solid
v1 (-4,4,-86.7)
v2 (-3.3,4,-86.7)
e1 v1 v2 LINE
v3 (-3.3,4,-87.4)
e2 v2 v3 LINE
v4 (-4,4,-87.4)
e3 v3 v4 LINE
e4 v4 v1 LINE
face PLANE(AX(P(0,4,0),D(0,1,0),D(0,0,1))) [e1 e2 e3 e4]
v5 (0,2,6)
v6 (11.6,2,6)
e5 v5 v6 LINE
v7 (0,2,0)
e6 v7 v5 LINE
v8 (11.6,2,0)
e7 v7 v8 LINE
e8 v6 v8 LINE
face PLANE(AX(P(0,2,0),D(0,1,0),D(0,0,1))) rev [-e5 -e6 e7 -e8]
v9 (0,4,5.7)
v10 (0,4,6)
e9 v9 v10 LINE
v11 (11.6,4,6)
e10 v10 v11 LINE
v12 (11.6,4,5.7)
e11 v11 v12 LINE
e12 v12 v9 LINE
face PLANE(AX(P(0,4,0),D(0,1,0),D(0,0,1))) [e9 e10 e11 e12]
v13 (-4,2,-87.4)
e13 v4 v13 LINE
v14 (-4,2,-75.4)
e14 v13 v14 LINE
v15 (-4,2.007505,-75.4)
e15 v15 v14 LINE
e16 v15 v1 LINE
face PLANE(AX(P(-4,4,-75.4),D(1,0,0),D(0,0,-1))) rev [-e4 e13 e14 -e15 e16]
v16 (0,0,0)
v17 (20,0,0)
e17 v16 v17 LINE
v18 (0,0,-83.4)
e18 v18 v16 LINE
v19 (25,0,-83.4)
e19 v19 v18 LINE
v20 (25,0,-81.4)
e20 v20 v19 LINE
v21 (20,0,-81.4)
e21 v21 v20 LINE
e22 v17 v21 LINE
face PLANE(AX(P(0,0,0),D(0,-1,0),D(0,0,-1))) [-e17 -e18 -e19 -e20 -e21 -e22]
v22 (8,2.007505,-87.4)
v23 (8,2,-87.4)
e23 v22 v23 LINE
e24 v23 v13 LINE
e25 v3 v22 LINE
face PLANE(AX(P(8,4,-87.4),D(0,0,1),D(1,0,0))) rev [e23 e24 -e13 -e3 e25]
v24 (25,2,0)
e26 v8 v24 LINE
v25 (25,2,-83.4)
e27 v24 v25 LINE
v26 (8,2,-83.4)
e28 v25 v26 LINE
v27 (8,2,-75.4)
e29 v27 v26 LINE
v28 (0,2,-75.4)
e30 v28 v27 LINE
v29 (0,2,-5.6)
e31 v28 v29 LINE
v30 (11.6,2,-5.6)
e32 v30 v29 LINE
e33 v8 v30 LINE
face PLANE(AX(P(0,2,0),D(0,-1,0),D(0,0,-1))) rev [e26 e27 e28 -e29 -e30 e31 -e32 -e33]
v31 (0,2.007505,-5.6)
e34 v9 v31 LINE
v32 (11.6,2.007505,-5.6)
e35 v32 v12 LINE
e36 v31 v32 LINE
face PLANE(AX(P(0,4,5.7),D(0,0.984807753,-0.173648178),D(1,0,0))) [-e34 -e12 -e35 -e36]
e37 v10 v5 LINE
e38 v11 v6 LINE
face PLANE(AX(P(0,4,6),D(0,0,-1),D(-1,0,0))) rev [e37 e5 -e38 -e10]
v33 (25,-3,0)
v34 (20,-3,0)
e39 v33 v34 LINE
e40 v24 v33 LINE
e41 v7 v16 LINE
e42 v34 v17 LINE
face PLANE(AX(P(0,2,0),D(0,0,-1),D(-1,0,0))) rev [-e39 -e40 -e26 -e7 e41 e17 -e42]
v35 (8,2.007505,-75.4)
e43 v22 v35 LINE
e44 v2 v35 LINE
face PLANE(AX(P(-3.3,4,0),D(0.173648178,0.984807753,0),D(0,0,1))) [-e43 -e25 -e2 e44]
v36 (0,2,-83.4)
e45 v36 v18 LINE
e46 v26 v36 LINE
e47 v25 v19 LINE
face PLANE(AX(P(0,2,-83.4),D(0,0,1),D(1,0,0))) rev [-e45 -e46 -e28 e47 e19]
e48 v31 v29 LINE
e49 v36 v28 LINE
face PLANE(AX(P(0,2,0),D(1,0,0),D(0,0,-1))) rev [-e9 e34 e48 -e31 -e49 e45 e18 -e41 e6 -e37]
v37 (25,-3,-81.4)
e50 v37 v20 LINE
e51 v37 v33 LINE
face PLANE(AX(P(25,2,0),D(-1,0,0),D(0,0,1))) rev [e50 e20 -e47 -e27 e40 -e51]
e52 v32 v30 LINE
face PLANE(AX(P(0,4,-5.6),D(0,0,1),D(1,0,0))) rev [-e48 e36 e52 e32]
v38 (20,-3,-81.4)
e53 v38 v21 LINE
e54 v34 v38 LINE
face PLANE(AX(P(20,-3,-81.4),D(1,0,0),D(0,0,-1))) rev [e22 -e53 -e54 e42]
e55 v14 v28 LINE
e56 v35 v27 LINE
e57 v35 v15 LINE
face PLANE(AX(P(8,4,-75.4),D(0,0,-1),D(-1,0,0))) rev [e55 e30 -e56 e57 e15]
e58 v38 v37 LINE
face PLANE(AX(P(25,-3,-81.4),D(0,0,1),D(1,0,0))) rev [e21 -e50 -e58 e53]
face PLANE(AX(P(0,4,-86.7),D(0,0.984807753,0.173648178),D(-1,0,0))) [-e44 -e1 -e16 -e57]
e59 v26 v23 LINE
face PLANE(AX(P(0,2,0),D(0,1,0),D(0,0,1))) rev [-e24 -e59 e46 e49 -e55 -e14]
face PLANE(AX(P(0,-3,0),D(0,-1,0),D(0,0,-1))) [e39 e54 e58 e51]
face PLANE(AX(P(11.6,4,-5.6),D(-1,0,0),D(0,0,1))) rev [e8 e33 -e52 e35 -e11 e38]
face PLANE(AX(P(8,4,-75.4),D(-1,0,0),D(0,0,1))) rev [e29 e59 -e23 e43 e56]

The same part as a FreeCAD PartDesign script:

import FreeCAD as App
import Part
import Sketcher


def edges_at(feature, points):
    """Names of the edges that pass closest to the given points."""
    edges = feature.Shape.Edges
    near = lambda p: min(range(len(edges)), key=lambda i: edges[i].distToShape(Part.Vertex(*p))[0])
    return sorted({f"Edge{near(p) + 1}" for p in points})

doc = App.newDocument("Part")
body = doc.addObject("PartDesign::Body", "Body")

# Sketch on XZ plane
sketch1 = body.newObject("Sketcher::SketchObject", "Sketch")
sketch1.AttachmentSupport = (doc.getObject("XZ_Plane"), [""])
sketch1.MapMode = "FlatFace"
sketch1.addGeometry([
    Part.LineSegment(App.Vector(0, -83, 0), App.Vector(0, 0, 0)),
    Part.LineSegment(App.Vector(0, 0, 0), App.Vector(25, 0, 0)),
    Part.LineSegment(App.Vector(25, 0, 0), App.Vector(25, -83, 0)),
    Part.LineSegment(App.Vector(25, -83, 0), App.Vector(0, -83, 0)),
], False)
sketch1.addConstraint([
    Sketcher.Constraint("Coincident", 0, 2, 1, 1),
    Sketcher.Constraint("Coincident", 1, 2, 2, 1),
    Sketcher.Constraint("Coincident", 2, 2, 3, 1),
    Sketcher.Constraint("Coincident", 3, 2, 0, 1),
    Sketcher.Constraint("Vertical", 0),
    Sketcher.Constraint("Horizontal", 1),
    Sketcher.Constraint("Vertical", 2),
    Sketcher.Constraint("Horizontal", 3),
    Sketcher.Constraint("Coincident", 0, 2, -1, 1),
    Sketcher.Constraint("DistanceX", 1, 1, 1, 2, 25.0),
    Sketcher.Constraint("DistanceY", 0, 1, 0, 2, 83.4),
])
pad1 = body.newObject("PartDesign::Pad", "Pad")
pad1.Profile = sketch1
pad1.Length = 2
pad1.Reversed = True

# Sketch on XZ plane
sketch2 = body.newObject("Sketcher::SketchObject", "Sketch001")
sketch2.AttachmentSupport = (doc.getObject("XZ_Plane"), [""])
sketch2.MapMode = "FlatFace"
sketch2.AttachmentOffset = App.Placement(App.Vector(0, 0, -2), App.Rotation())
sketch2.addGeometry([
    Part.LineSegment(App.Vector(0, -6, 0), App.Vector(0, 6, 0)),  # 0
    Part.LineSegment(App.Vector(0, 6, 0), App.Vector(12, 6, 0)),  # 1
    Part.LineSegment(App.Vector(12, 6, 0), App.Vector(12, -6, 0)),  # 2
    Part.LineSegment(App.Vector(12, -6, 0), App.Vector(0, -6, 0)),  # 3
    Part.LineSegment(App.Vector(-4, -87, 0), App.Vector(-4, -75, 0)),  # 4
    Part.LineSegment(App.Vector(-4, -75, 0), App.Vector(8, -75, 0)),  # 5
    Part.LineSegment(App.Vector(8, -75, 0), App.Vector(8, -87, 0)),  # 6
    Part.LineSegment(App.Vector(8, -87, 0), App.Vector(-4, -87, 0)),  # 7
], False)
sketch2.addConstraint([
    Sketcher.Constraint("Coincident", 0, 2, 1, 1),
    Sketcher.Constraint("Coincident", 1, 2, 2, 1),
    Sketcher.Constraint("Coincident", 2, 2, 3, 1),
    Sketcher.Constraint("Coincident", 3, 2, 0, 1),
    Sketcher.Constraint("Coincident", 4, 2, 5, 1),
    Sketcher.Constraint("Coincident", 5, 2, 6, 1),
    Sketcher.Constraint("Coincident", 6, 2, 7, 1),
    Sketcher.Constraint("Coincident", 7, 2, 4, 1),
    Sketcher.Constraint("Vertical", 0),
    Sketcher.Constraint("Horizontal", 1),
    Sketcher.Constraint("Vertical", 2),
    Sketcher.Constraint("Horizontal", 3),
    Sketcher.Constraint("Vertical", 4),
    Sketcher.Constraint("Horizontal", 5),
    Sketcher.Constraint("Vertical", 6),
    Sketcher.Constraint("Horizontal", 7),
    Sketcher.Constraint("PointOnObject", 0, 2, -2),
    Sketcher.Constraint("Equal", 3, 0),
    Sketcher.Constraint("Equal", 7, 4),
    Sketcher.Constraint("DistanceX", 5, 1, 5, 2, 12.0),
    Sketcher.Constraint("DistanceX", 1, 1, 1, 2, 11.6),
    Sketcher.Constraint("DistanceY", -1, 1, 0, 2, 6.0),
    Sketcher.Constraint("DistanceX", 4, 2, -1, 1, 4.0),
    Sketcher.Constraint("DistanceY", 4, 2, -1, 1, 75.4),
])
pad2 = body.newObject("PartDesign::Pad", "Pad001")
pad2.Profile = sketch2
pad2.Length = 2
pad2.Reversed = True
doc.recompute()

chamfer = body.newObject("PartDesign::Chamfer", "Chamfer")
chamfer.Base = (pad2, edges_at(pad2, [(5.8, 4, -5.6)]))
chamfer.ChamferType = "Two distances"
chamfer.Size = 11.3
chamfer.Size2 = 1.992495
chamfer.FlipDirection = True
doc.recompute()

chamfer2 = body.newObject("PartDesign::Chamfer", "Chamfer001")
chamfer2.Base = (chamfer, edges_at(chamfer, [(8, 4, -81.4), (2, 4, -75.4)]))
chamfer2.ChamferType = "Two distances"
chamfer2.Size = 11.3
chamfer2.Size2 = 1.992495
chamfer2.FlipDirection = True

# Sketch on XZ plane
sketch3 = body.newObject("Sketcher::SketchObject", "Sketch002")
sketch3.AttachmentSupport = (doc.getObject("XZ_Plane"), [""])
sketch3.MapMode = "FlatFace"
sketch3.addGeometry([
    Part.LineSegment(App.Vector(20, 0, 0), App.Vector(20, -81, 0)),
    Part.LineSegment(App.Vector(20, -81, 0), App.Vector(25, -81, 0)),
    Part.LineSegment(App.Vector(25, -81, 0), App.Vector(25, 0, 0)),
    Part.LineSegment(App.Vector(25, 0, 0), App.Vector(20, 0, 0)),
], False)
sketch3.addConstraint([
    Sketcher.Constraint("Coincident", 0, 2, 1, 1),
    Sketcher.Constraint("Coincident", 1, 2, 2, 1),
    Sketcher.Constraint("Coincident", 2, 2, 3, 1),
    Sketcher.Constraint("Coincident", 3, 2, 0, 1),
    Sketcher.Constraint("Vertical", 0),
    Sketcher.Constraint("Horizontal", 1),
    Sketcher.Constraint("Vertical", 2),
    Sketcher.Constraint("Horizontal", 3),
    Sketcher.Constraint("PointOnObject", 2, 2, -1),
    Sketcher.Constraint("DistanceX", 1, 1, 1, 2, 5.0),
    Sketcher.Constraint("DistanceY", 0, 2, 0, 1, 81.4),
    Sketcher.Constraint("DistanceX", -1, 1, 0, 2, 20.0),
])
pad3 = body.newObject("PartDesign::Pad", "Pad002")
pad3.Profile = sketch3
pad3.Length = 3

doc.recompute()
